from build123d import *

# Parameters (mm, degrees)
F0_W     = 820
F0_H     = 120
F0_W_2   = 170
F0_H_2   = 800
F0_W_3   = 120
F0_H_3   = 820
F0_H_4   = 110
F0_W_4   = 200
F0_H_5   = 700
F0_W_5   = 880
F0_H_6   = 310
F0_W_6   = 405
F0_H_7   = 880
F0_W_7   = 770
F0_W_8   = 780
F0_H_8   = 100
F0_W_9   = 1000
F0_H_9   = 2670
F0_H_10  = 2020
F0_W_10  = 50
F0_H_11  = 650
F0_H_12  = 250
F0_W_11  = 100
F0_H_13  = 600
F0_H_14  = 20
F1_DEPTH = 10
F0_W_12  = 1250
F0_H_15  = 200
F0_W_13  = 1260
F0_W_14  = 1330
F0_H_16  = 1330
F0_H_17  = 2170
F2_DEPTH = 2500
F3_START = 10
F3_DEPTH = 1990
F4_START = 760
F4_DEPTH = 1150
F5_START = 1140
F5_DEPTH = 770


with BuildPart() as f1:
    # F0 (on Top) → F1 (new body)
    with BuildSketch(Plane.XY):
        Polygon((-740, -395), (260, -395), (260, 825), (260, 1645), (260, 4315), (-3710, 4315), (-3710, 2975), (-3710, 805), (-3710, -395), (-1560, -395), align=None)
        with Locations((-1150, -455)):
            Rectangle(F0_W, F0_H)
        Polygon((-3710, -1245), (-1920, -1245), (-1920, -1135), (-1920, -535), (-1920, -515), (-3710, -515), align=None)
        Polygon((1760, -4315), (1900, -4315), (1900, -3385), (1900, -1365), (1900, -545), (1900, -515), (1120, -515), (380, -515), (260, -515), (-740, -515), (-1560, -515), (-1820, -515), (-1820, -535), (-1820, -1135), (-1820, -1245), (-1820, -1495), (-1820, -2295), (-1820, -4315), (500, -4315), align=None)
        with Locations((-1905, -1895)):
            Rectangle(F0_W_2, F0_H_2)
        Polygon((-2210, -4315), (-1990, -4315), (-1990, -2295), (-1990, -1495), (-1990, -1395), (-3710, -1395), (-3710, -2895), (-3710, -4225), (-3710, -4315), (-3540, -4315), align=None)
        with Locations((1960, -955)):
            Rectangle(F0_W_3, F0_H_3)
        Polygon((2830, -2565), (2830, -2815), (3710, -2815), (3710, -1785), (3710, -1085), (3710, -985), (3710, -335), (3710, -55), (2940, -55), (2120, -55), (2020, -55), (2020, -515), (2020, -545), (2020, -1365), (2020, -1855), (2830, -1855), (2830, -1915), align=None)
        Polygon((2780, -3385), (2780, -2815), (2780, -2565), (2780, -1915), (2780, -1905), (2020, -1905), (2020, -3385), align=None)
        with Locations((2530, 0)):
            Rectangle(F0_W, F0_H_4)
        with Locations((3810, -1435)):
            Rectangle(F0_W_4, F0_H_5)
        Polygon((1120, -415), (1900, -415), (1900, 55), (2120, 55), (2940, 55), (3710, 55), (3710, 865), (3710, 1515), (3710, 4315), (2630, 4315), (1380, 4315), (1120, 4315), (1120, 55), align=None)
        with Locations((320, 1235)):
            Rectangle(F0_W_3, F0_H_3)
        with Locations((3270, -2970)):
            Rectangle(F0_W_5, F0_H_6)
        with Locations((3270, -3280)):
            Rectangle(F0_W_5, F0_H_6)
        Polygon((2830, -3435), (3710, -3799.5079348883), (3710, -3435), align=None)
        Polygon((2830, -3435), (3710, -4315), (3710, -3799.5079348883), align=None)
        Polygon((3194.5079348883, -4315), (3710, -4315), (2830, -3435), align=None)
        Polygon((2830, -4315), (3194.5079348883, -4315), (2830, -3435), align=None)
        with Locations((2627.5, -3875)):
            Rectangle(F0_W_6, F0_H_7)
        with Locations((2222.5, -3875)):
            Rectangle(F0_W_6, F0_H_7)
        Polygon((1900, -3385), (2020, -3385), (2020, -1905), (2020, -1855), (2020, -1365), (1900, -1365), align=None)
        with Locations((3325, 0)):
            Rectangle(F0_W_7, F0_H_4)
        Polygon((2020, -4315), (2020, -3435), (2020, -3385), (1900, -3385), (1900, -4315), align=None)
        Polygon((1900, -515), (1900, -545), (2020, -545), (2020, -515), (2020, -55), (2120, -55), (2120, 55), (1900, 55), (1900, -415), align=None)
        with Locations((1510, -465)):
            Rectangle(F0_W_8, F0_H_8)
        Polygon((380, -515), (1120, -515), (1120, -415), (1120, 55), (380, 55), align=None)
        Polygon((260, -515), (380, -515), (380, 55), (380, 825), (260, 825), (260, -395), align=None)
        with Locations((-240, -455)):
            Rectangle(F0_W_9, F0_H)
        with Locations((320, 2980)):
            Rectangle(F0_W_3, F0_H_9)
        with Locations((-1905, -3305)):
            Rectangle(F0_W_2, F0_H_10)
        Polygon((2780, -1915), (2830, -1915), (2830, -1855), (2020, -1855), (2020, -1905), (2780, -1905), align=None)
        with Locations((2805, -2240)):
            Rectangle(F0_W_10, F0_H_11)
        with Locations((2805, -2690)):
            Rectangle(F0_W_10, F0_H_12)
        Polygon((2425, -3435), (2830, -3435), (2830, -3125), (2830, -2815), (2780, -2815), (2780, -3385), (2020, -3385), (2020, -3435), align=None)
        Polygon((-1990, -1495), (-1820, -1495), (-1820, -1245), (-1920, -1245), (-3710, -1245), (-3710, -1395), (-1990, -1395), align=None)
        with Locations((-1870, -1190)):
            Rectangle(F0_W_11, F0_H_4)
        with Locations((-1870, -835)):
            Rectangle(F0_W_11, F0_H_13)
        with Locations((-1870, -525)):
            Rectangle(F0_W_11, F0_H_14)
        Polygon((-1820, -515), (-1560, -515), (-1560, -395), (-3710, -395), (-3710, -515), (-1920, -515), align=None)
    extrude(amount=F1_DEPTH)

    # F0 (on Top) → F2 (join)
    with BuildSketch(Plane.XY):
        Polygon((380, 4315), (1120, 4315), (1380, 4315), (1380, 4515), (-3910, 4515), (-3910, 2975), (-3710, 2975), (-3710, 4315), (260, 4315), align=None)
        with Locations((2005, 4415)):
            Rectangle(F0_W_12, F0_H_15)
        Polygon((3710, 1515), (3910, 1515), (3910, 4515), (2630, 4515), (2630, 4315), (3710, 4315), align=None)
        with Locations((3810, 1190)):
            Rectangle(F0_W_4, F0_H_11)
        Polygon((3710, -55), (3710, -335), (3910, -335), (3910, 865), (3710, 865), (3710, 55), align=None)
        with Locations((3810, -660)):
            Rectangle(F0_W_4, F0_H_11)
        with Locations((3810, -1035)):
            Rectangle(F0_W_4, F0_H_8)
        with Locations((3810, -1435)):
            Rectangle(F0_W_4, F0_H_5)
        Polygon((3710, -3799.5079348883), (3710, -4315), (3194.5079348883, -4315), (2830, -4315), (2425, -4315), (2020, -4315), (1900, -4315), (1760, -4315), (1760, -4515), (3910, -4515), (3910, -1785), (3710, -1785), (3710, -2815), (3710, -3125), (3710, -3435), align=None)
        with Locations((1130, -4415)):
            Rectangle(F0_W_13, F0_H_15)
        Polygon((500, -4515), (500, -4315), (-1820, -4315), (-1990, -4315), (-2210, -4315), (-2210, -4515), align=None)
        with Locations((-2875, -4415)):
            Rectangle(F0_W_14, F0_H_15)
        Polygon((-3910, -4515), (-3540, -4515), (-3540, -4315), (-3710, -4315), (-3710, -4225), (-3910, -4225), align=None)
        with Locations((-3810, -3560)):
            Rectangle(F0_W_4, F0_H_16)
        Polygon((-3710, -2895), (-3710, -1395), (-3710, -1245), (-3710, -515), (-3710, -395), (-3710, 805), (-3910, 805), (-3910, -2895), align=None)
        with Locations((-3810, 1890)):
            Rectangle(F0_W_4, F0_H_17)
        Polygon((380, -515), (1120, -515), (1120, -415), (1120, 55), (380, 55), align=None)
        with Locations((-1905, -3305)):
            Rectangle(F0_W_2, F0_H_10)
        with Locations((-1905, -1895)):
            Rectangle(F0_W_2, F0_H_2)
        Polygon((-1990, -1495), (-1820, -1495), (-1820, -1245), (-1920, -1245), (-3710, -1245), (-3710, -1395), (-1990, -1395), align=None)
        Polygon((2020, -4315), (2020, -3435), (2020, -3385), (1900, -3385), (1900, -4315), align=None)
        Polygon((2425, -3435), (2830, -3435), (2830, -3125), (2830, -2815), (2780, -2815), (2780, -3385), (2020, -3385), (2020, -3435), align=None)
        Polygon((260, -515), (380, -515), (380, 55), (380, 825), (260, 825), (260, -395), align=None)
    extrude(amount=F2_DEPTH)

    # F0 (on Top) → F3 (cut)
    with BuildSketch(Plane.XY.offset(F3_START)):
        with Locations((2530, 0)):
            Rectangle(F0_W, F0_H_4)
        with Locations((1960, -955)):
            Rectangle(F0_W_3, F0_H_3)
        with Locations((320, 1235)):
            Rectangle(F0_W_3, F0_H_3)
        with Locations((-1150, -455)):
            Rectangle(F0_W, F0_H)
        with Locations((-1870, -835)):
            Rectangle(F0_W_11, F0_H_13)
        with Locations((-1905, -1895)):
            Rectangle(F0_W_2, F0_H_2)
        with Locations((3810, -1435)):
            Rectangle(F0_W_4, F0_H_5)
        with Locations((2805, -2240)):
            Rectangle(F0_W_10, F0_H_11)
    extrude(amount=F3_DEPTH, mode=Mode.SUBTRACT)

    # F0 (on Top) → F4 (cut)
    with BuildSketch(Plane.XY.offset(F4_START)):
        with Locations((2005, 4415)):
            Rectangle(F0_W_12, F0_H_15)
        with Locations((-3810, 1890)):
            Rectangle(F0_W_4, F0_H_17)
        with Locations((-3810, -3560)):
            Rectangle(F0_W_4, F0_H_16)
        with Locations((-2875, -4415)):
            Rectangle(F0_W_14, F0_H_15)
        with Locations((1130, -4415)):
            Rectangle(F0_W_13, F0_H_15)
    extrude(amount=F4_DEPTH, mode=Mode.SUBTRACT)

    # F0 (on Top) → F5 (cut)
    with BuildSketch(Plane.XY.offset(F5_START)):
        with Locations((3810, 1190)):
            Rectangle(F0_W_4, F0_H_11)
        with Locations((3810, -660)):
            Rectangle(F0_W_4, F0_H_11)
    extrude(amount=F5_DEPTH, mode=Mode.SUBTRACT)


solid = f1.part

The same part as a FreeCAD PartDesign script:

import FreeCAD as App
import Part
import Sketcher


def add_polygon(sketch, points):
    """Adds a closed chain of lines whose ends are joined by coincident constraints."""
    first, n = sketch.GeometryCount, len(points)
    for a, b in zip(points, points[1:] + points[:1]):
        sketch.addGeometry(Part.LineSegment(App.Vector(*a, 0), App.Vector(*b, 0)), False)
    for i in range(n):
        sketch.addConstraint(Sketcher.Constraint("Coincident", first + i, 2, first + (i + 1) % n, 1))

doc = App.newDocument("Part")
params = doc.addObject("Spreadsheet::Sheet", "Params")
for row, (alias, value) in enumerate([
    ("sketch1_width", "7420 mm"),
    ("sketch1_width2", "200 mm"),
    ("sketch1_width3", "2590 mm"),
    ("sketch1_width4", "740 mm"),
    ("sketch1_height", "8630 mm"),
    ("pad1_length", "10 mm"),
    ("sketch2_width", "7820 mm"),
    ("sketch2_width2", "7420 mm"),
    ("sketch2_width3", "1690 mm"),
    ("sketch2_width4", "810 mm"),
    ("sketch2_width5", "50 mm"),
    ("pad2_length", "2500 mm"),
    ("sketch3_width", "820 mm"),
    ("sketch3_width2", "120 mm"),
    ("sketch3_width3", "100 mm"),
    ("sketch3_width4", "170 mm"),
    ("sketch3_width5", "200 mm"),
    ("pocket1_length", "1990 mm"),
    ("sketch4_width", "1250 mm"),
    ("sketch4_width2", "200 mm"),
    ("sketch4_width3", "1330 mm"),
    ("sketch4_width4", "1260 mm"),
    ("sketch4_height", "2170 mm"),
    ("pocket2_length", "1150 mm"),
    ("sketch5_width", "200 mm"),
    ("sketch5_height", "650 mm"),
    ("pocket3_length", "770 mm"),
], start=1):
    params.set(f"A{row}", alias)
    params.set(f"B{row}", "=" + value)
    params.setAlias(f"B{row}", alias)

body = doc.addObject("PartDesign::Body", "Body")

# Sketch on XY plane
sketch1 = body.newObject("Sketcher::SketchObject", "Sketch")
sketch1.AttachmentSupport = (doc.getObject("XY_Plane"), [""])
sketch1.MapMode = "FlatFace"
add_polygon(sketch1, [(-3710, 4315), (-3710, -4315), (3710, -4315), (3710, -1785), (3910, -1785), (3910, -1085), (3710, -1085), (3710, 4315), (1120, 4315), (1120, 55), (380, 55), (380, 4315)])  # lines 0-11
sketch1.addConstraint([
    Sketcher.Constraint("Vertical", 0),
    Sketcher.Constraint("Horizontal", 1),
    Sketcher.Constraint("Vertical", 2),
    Sketcher.Constraint("Horizontal", 3),
    Sketcher.Constraint("Vertical", 4),
    Sketcher.Constraint("Horizontal", 5),
    Sketcher.Constraint("Vertical", 6),
    Sketcher.Constraint("Horizontal", 7),
    Sketcher.Constraint("Vertical", 8),
    Sketcher.Constraint("Horizontal", 9),
    Sketcher.Constraint("Vertical", 10),
    Sketcher.Constraint("Horizontal", 11),
    Sketcher.Constraint("Symmetric", 0, 2, 6, 2, -1, 1),
    Sketcher.Constraint("Symmetric", 1, 2, 11, 2, -1, 1),
    Sketcher.Constraint("DistanceX", 1, 1, 1, 2, 7420.0),
    Sketcher.Constraint("DistanceX", 3, 1, 3, 2, 200.0),
    Sketcher.Constraint("DistanceX", 7, 2, 7, 1, 2590.0),
    Sketcher.Constraint("DistanceX", 9, 2, 9, 1, 740.0),
    Sketcher.Constraint("DistanceY", 0, 2, 0, 1, 8630.0),
    Sketcher.Constraint("DistanceY", 2, 1, 2, 2, 2530.0),
    Sketcher.Constraint("DistanceY", 4, 1, 4, 2, 700.0),
    Sketcher.Constraint("DistanceY", 8, 2, 8, 1, 4260.0),
])
sketch1.setExpression("Constraints[26]", "Params.sketch1_width")
sketch1.setExpression("Constraints[27]", "Params.sketch1_width2")
sketch1.setExpression("Constraints[28]", "Params.sketch1_width3")
sketch1.setExpression("Constraints[29]", "Params.sketch1_width4")
sketch1.setExpression("Constraints[30]", "Params.sketch1_height")
pad1 = body.newObject("PartDesign::Pad", "Pad")
pad1.Profile = sketch1
pad1.setExpression("Length", "Params.pad1_length")

# Sketch on XY plane
sketch2 = body.newObject("Sketcher::SketchObject", "Sketch001")
sketch2.AttachmentSupport = (doc.getObject("XY_Plane"), [""])
sketch2.MapMode = "FlatFace"
add_polygon(sketch2, [(-3910, 4515), (-3910, -4515), (3910, -4515), (3910, 4515)])  # lines 0-3
add_polygon(sketch2, [(-3710, 4315), (3710, 4315), (3710, -4315), (2020, -4315), (2020, -3435), (2830, -3435), (2830, -2815), (2780, -2815), (2780, -3385), (1900, -3385), (1900, -4315), (-1820, -4315), (-1820, -1245), (-3710, -1245)])  # lines 4-17
add_polygon(sketch2, [(-1990, -4315), (-3710, -4315), (-3710, -1395), (-1990, -1395)])  # lines 18-21
add_polygon(sketch2, [(1120, -515), (1120, 55), (380, 55), (380, 825), (260, 825), (260, -515)])  # lines 22-27
sketch2.addConstraint([
    Sketcher.Constraint("Vertical", 0),
    Sketcher.Constraint("Horizontal", 1),
    Sketcher.Constraint("Vertical", 2),
    Sketcher.Constraint("Horizontal", 3),
    Sketcher.Constraint("Horizontal", 4),
    Sketcher.Constraint("Vertical", 5),
    Sketcher.Constraint("Horizontal", 6),
    Sketcher.Constraint("Vertical", 7),
    Sketcher.Constraint("Horizontal", 8),
    Sketcher.Constraint("Vertical", 9),
    Sketcher.Constraint("Horizontal", 10),
    Sketcher.Constraint("Vertical", 11),
    Sketcher.Constraint("Horizontal", 12),
    Sketcher.Constraint("Vertical", 13),
    Sketcher.Constraint("Horizontal", 14),
    Sketcher.Constraint("Vertical", 15),
    Sketcher.Constraint("Horizontal", 16),
    Sketcher.Constraint("Vertical", 17),
    Sketcher.Constraint("Horizontal", 18),
    Sketcher.Constraint("Vertical", 19),
    Sketcher.Constraint("Horizontal", 20),
    Sketcher.Constraint("Vertical", 21),
    Sketcher.Constraint("Vertical", 22),
    Sketcher.Constraint("Horizontal", 23),
    Sketcher.Constraint("Vertical", 24),
    Sketcher.Constraint("Horizontal", 25),
    Sketcher.Constraint("Vertical", 26),
    Sketcher.Constraint("Horizontal", 27),
    Sketcher.Constraint("Symmetric", 0, 2, 2, 2, -1, 1),
    Sketcher.Constraint("Symmetric", 5, 2, 17, 2, -1, 1),
    Sketcher.Constraint("Symmetric", 4, 2, 18, 2, -1, 1),
    Sketcher.Constraint("Horizontal", 6, 2, 13, 2),
    Sketcher.Constraint("Equal", 12, 7),
    Sketcher.Constraint("Equal", 11, 22),
    Sketcher.Constraint("DistanceX", 1, 1, 1, 2, 7820.0),
    Sketcher.Constraint("DistanceX", 4, 1, 4, 2, 7420.0),
    Sketcher.Constraint("DistanceX", 6, 2, 6, 1, 1690.0),
    Sketcher.Constraint("DistanceX", 8, 1, 8, 2, 810.0),
    Sketcher.Constraint("DistanceX", 10, 2, 10, 1, 50.0),
    Sketcher.Constraint("DistanceX", 12, 2, 12, 1, 880.0),
    Sketcher.Constraint("DistanceX", 14, 2, 14, 1, 3720.0),
    Sketcher.Constraint("DistanceX", 18, 2, 18, 1, 1720.0),
    Sketcher.Constraint("DistanceX", 23, 2, 23, 1, 740.0),
    Sketcher.Constraint("DistanceX", 25, 2, 25, 1, 120.0),
    Sketcher.Constraint("DistanceY", 0, 2, 0, 1, 9030.0),
    Sketcher.Constraint("DistanceY", 5, 2, 5, 1, 8630.0),
    Sketcher.Constraint("DistanceY", 9, 1, 9, 2, 620.0),
    Sketcher.Constraint("DistanceY", 11, 2, 11, 1, 570.0),
    Sketcher.Constraint("DistanceY", 15, 1, 15, 2, 3070.0),
    Sketcher.Constraint("DistanceY", 19, 1, 19, 2, 2920.0),
    Sketcher.Constraint("DistanceY", 24, 1, 24, 2, 770.0),
    Sketcher.Constraint("DistanceX", -1, 1, 22, 2, 1120.0),
    Sketcher.Constraint("DistanceY", -1, 1, 22, 2, 55.0),
])
sketch2.setExpression("Constraints[62]", "Params.sketch2_width")
sketch2.setExpression("Constraints[63]", "Params.sketch2_width2")
sketch2.setExpression("Constraints[64]", "Params.sketch2_width3")
sketch2.setExpression("Constraints[65]", "Params.sketch2_width4")
sketch2.setExpression("Constraints[66]", "Params.sketch2_width5")
pad2 = body.newObject("PartDesign::Pad", "Pad001")
pad2.Profile = sketch2
pad2.setExpression("Length", "Params.pad2_length")

# Sketch on XY plane
sketch3 = body.newObject("Sketcher::SketchObject", "Sketch002")
sketch3.AttachmentSupport = (doc.getObject("XY_Plane"), [""])
sketch3.MapMode = "FlatFace"
sketch3.AttachmentOffset = App.Placement(App.Vector(0, 0, 10), App.Rotation())
add_polygon(sketch3, [(2120, 55), (2120, -55), (2940, -55), (2940, 55)])  # lines 0-3
add_polygon(sketch3, [(1900, -545), (1900, -1365), (2020, -1365), (2020, -545)])  # lines 4-7
add_polygon(sketch3, [(260, 1645), (260, 825), (380, 825), (380, 1645)])  # lines 8-11
add_polygon(sketch3, [(-1560, -395), (-1560, -515), (-740, -515), (-740, -395)])  # lines 12-15
add_polygon(sketch3, [(-1920, -535), (-1920, -1135), (-1820, -1135), (-1820, -535)])  # lines 16-19
add_polygon(sketch3, [(-1990, -1495), (-1990, -2295), (-1820, -2295), (-1820, -1495)])  # lines 20-23
add_polygon(sketch3, [(3710, -1085), (3710, -1785), (3910, -1785), (3910, -1085)])  # lines 24-27
add_polygon(sketch3, [(2780, -1915), (2780, -2565), (2830, -2565), (2830, -1915)])  # lines 28-31
sketch3.addConstraint([
    Sketcher.Constraint("Vertical", 0),
    Sketcher.Constraint("Horizontal", 1),
    Sketcher.Constraint("Vertical", 2),
    Sketcher.Constraint("Horizontal", 3),
    Sketcher.Constraint("Vertical", 4),
    Sketcher.Constraint("Horizontal", 5),
    Sketcher.Constraint("Vertical", 6),
    Sketcher.Constraint("Horizontal", 7),
    Sketcher.Constraint("Vertical", 8),
    Sketcher.Constraint("Horizontal", 9),
    Sketcher.Constraint("Vertical", 10),
    Sketcher.Constraint("Horizontal", 11),
    Sketcher.Constraint("Vertical", 12),
    Sketcher.Constraint("Horizontal", 13),
    Sketcher.Constraint("Vertical", 14),
    Sketcher.Constraint("Horizontal", 15),
    Sketcher.Constraint("Vertical", 16),
    Sketcher.Constraint("Horizontal", 17),
    Sketcher.Constraint("Vertical", 18),
    Sketcher.Constraint("Horizontal", 19),
    Sketcher.Constraint("Vertical", 20),
    Sketcher.Constraint("Horizontal", 21),
    Sketcher.Constraint("Vertical", 22),
    Sketcher.Constraint("Horizontal", 23),
    Sketcher.Constraint("Vertical", 24),
    Sketcher.Constraint("Horizontal", 25),
    Sketcher.Constraint("Vertical", 26),
    Sketcher.Constraint("Horizontal", 27),
    Sketcher.Constraint("Vertical", 28),
    Sketcher.Constraint("Horizontal", 29),
    Sketcher.Constraint("Vertical", 30),
    Sketcher.Constraint("Horizontal", 31),
    Sketcher.Constraint("Vertical", 18, 2, 21, 2),
    Sketcher.Constraint("Equal", 7, 9),
    Sketcher.Constraint("Equal", 3, 13),
    Sketcher.Constraint("Equal", 15, 4),
    Sketcher.Constraint("Equal", 6, 8),
    Sketcher.Constraint("Equal", 11, 12),
    Sketcher.Constraint("DistanceX", 1, 1, 1, 2, 820.0),
    Sketcher.Constraint("DistanceX", 5, 1, 5, 2, 120.0),
    Sketcher.Constraint("DistanceX", 17, 1, 17, 2, 100.0),
    Sketcher.Constraint("DistanceX", 21, 1, 21, 2, 170.0),
    Sketcher.Constraint("DistanceX", 25, 1, 25, 2, 200.0),
    Sketcher.Constraint("DistanceX", 29, 1, 29, 2, 50.0),
    Sketcher.Constraint("DistanceY", 0, 2, 0, 1, 110.0),
    Sketcher.Constraint("DistanceY", 16, 2, 16, 1, 600.0),
    Sketcher.Constraint("DistanceY", 20, 2, 20, 1, 800.0),
    Sketcher.Constraint("DistanceY", 24, 2, 24, 1, 700.0),
    Sketcher.Constraint("DistanceY", 28, 2, 28, 1, 650.0),
    Sketcher.Constraint("DistanceX", -1, 1, 0, 2, 2120.0),
    Sketcher.Constraint("DistanceY", 0, 2, -1, 1, 55.0),
    Sketcher.Constraint("DistanceX", -1, 1, 4, 2, 1900.0),
    Sketcher.Constraint("DistanceY", 4, 2, -1, 1, 1365.0),
    Sketcher.Constraint("DistanceX", -1, 1, 8, 2, 260.0),
    Sketcher.Constraint("DistanceY", -1, 1, 8, 2, 825.0),
    Sketcher.Constraint("DistanceX", 12, 2, -1, 1, 1560.0),
    Sketcher.Constraint("DistanceY", 12, 2, -1, 1, 515.0),
    Sketcher.Constraint("DistanceX", 16, 2, -1, 1, 1920.0),
    Sketcher.Constraint("DistanceY", 16, 2, -1, 1, 1135.0),
    Sketcher.Constraint("DistanceY", 20, 2, -1, 1, 2295.0),
    Sketcher.Constraint("DistanceX", -1, 1, 24, 2, 3710.0),
    Sketcher.Constraint("DistanceY", 24, 2, -1, 1, 1785.0),
    Sketcher.Constraint("DistanceX", -1, 1, 28, 2, 2780.0),
    Sketcher.Constraint("DistanceY", 28, 2, -1, 1, 2565.0),
])
sketch3.setExpression("Constraints[70]", "Params.sketch3_width")
sketch3.setExpression("Constraints[71]", "Params.sketch3_width2")
sketch3.setExpression("Constraints[72]", "Params.sketch3_width3")
sketch3.setExpression("Constraints[73]", "Params.sketch3_width4")
sketch3.setExpression("Constraints[74]", "Params.sketch3_width5")
pocket1 = body.newObject("PartDesign::Pocket", "Pocket")
pocket1.Profile = sketch3
pocket1.setExpression("Length", "Params.pocket1_length")
pocket1.Reversed = True

# Sketch on XY plane
sketch4 = body.newObject("Sketcher::SketchObject", "Sketch003")
sketch4.AttachmentSupport = (doc.getObject("XY_Plane"), [""])
sketch4.MapMode = "FlatFace"
sketch4.AttachmentOffset = App.Placement(App.Vector(0, 0, 760), App.Rotation())
add_polygon(sketch4, [(1380, 4515), (1380, 4315), (2630, 4315), (2630, 4515)])  # lines 0-3
add_polygon(sketch4, [(-3910, 2975), (-3910, 805), (-3710, 805), (-3710, 2975)])  # lines 4-7
add_polygon(sketch4, [(-3910, -2895), (-3910, -4225), (-3710, -4225), (-3710, -2895)])  # lines 8-11
add_polygon(sketch4, [(-3540, -4315), (-3540, -4515), (-2210, -4515), (-2210, -4315)])  # lines 12-15
add_polygon(sketch4, [(500, -4315), (500, -4515), (1760, -4515), (1760, -4315)])  # lines 16-19
sketch4.addConstraint([
    Sketcher.Constraint("Vertical", 0),
    Sketcher.Constraint("Horizontal", 1),
    Sketcher.Constraint("Vertical", 2),
    Sketcher.Constraint("Horizontal", 3),
    Sketcher.Constraint("Vertical", 4),
    Sketcher.Constraint("Horizontal", 5),
    Sketcher.Constraint("Vertical", 6),
    Sketcher.Constraint("Horizontal", 7),
    Sketcher.Constraint("Vertical", 8),
    Sketcher.Constraint("Horizontal", 9),
    Sketcher.Constraint("Vertical", 10),
    Sketcher.Constraint("Horizontal", 11),
    Sketcher.Constraint("Vertical", 12),
    Sketcher.Constraint("Horizontal", 13),
    Sketcher.Constraint("Vertical", 14),
    Sketcher.Constraint("Horizontal", 15),
    Sketcher.Constraint("Vertical", 16),
    Sketcher.Constraint("Horizontal", 17),
    Sketcher.Constraint("Vertical", 18),
    Sketcher.Constraint("Horizontal", 19),
    Sketcher.Constraint("Horizontal", 13, 2, 16, 2),
    Sketcher.Constraint("Horizontal", 15, 2, 18, 2),
    Sketcher.Constraint("Vertical", 7, 2, 8, 2),
    Sketcher.Constraint("Vertical", 6, 2, 9, 2),
    Sketcher.Constraint("Equal", 11, 0),
    Sketcher.Constraint("Equal", 15, 8),
    Sketcher.Constraint("Equal", 2, 12),
    Sketcher.Constraint("DistanceX", 1, 1, 1, 2, 1250.0),
    Sketcher.Constraint("DistanceX", 5, 1, 5, 2, 200.0),
    Sketcher.Constraint("DistanceX", 13, 1, 13, 2, 1330.0),
    Sketcher.Constraint("DistanceX", 17, 1, 17, 2, 1260.0),
    Sketcher.Constraint("DistanceY", 4, 2, 4, 1, 2170.0),
    Sketcher.Constraint("DistanceX", -1, 1, 0, 2, 1380.0),
    Sketcher.Constraint("DistanceY", -1, 1, 0, 2, 4315.0),
    Sketcher.Constraint("DistanceX", 4, 2, -1, 1, 3910.0),
    Sketcher.Constraint("DistanceY", -1, 1, 4, 2, 805.0),
    Sketcher.Constraint("DistanceY", 8, 2, -1, 1, 4225.0),
    Sketcher.Constraint("DistanceX", 12, 2, -1, 1, 3540.0),
    Sketcher.Constraint("DistanceY", 12, 2, -1, 1, 4515.0),
    Sketcher.Constraint("DistanceX", -1, 1, 16, 2, 500.0),
])
sketch4.setExpression("Constraints[47]", "Params.sketch4_width")
sketch4.setExpression("Constraints[48]", "Params.sketch4_width2")
sketch4.setExpression("Constraints[49]", "Params.sketch4_width3")
sketch4.setExpression("Constraints[50]", "Params.sketch4_width4")
sketch4.setExpression("Constraints[51]", "Params.sketch4_height")
pocket2 = body.newObject("PartDesign::Pocket", "Pocket001")
pocket2.Profile = sketch4
pocket2.setExpression("Length", "Params.pocket2_length")
pocket2.Reversed = True

# Sketch on XY plane
sketch5 = body.newObject("Sketcher::SketchObject", "Sketch004")
sketch5.AttachmentSupport = (doc.getObject("XY_Plane"), [""])
sketch5.MapMode = "FlatFace"
sketch5.AttachmentOffset = App.Placement(App.Vector(0, 0, 1140), App.Rotation())
add_polygon(sketch5, [(3710, 1515), (3710, 865), (3910, 865), (3910, 1515)])  # lines 0-3
add_polygon(sketch5, [(3710, -335), (3710, -985), (3910, -985), (3910, -335)])  # lines 4-7
sketch5.addConstraint([
    Sketcher.Constraint("Vertical", 0),
    Sketcher.Constraint("Horizontal", 1),
    Sketcher.Constraint("Vertical", 2),
    Sketcher.Constraint("Horizontal", 3),
    Sketcher.Constraint("Vertical", 4),
    Sketcher.Constraint("Horizontal", 5),
    Sketcher.Constraint("Vertical", 6),
    Sketcher.Constraint("Horizontal", 7),
    Sketcher.Constraint("Vertical", 3, 2, 4, 2),
    Sketcher.Constraint("Vertical", 2, 2, 5, 2),
    Sketcher.Constraint("Equal", 2, 4),
    Sketcher.Constraint("DistanceX", 1, 1, 1, 2, 200.0),
    Sketcher.Constraint("DistanceY", 0, 2, 0, 1, 650.0),
    Sketcher.Constraint("DistanceX", -1, 1, 0, 2, 3710.0),
    Sketcher.Constraint("DistanceY", -1, 1, 0, 2, 865.0),
    Sketcher.Constraint("DistanceY", 4, 2, -1, 1, 985.0),
])
sketch5.setExpression("Constraints[19]", "Params.sketch5_width")
sketch5.setExpression("Constraints[20]", "Params.sketch5_height")
pocket3 = body.newObject("PartDesign::Pocket", "Pocket002")
pocket3.Profile = sketch5
pocket3.setExpression("Length", "Params.pocket3_length")
pocket3.Reversed = True

doc.recompute()
